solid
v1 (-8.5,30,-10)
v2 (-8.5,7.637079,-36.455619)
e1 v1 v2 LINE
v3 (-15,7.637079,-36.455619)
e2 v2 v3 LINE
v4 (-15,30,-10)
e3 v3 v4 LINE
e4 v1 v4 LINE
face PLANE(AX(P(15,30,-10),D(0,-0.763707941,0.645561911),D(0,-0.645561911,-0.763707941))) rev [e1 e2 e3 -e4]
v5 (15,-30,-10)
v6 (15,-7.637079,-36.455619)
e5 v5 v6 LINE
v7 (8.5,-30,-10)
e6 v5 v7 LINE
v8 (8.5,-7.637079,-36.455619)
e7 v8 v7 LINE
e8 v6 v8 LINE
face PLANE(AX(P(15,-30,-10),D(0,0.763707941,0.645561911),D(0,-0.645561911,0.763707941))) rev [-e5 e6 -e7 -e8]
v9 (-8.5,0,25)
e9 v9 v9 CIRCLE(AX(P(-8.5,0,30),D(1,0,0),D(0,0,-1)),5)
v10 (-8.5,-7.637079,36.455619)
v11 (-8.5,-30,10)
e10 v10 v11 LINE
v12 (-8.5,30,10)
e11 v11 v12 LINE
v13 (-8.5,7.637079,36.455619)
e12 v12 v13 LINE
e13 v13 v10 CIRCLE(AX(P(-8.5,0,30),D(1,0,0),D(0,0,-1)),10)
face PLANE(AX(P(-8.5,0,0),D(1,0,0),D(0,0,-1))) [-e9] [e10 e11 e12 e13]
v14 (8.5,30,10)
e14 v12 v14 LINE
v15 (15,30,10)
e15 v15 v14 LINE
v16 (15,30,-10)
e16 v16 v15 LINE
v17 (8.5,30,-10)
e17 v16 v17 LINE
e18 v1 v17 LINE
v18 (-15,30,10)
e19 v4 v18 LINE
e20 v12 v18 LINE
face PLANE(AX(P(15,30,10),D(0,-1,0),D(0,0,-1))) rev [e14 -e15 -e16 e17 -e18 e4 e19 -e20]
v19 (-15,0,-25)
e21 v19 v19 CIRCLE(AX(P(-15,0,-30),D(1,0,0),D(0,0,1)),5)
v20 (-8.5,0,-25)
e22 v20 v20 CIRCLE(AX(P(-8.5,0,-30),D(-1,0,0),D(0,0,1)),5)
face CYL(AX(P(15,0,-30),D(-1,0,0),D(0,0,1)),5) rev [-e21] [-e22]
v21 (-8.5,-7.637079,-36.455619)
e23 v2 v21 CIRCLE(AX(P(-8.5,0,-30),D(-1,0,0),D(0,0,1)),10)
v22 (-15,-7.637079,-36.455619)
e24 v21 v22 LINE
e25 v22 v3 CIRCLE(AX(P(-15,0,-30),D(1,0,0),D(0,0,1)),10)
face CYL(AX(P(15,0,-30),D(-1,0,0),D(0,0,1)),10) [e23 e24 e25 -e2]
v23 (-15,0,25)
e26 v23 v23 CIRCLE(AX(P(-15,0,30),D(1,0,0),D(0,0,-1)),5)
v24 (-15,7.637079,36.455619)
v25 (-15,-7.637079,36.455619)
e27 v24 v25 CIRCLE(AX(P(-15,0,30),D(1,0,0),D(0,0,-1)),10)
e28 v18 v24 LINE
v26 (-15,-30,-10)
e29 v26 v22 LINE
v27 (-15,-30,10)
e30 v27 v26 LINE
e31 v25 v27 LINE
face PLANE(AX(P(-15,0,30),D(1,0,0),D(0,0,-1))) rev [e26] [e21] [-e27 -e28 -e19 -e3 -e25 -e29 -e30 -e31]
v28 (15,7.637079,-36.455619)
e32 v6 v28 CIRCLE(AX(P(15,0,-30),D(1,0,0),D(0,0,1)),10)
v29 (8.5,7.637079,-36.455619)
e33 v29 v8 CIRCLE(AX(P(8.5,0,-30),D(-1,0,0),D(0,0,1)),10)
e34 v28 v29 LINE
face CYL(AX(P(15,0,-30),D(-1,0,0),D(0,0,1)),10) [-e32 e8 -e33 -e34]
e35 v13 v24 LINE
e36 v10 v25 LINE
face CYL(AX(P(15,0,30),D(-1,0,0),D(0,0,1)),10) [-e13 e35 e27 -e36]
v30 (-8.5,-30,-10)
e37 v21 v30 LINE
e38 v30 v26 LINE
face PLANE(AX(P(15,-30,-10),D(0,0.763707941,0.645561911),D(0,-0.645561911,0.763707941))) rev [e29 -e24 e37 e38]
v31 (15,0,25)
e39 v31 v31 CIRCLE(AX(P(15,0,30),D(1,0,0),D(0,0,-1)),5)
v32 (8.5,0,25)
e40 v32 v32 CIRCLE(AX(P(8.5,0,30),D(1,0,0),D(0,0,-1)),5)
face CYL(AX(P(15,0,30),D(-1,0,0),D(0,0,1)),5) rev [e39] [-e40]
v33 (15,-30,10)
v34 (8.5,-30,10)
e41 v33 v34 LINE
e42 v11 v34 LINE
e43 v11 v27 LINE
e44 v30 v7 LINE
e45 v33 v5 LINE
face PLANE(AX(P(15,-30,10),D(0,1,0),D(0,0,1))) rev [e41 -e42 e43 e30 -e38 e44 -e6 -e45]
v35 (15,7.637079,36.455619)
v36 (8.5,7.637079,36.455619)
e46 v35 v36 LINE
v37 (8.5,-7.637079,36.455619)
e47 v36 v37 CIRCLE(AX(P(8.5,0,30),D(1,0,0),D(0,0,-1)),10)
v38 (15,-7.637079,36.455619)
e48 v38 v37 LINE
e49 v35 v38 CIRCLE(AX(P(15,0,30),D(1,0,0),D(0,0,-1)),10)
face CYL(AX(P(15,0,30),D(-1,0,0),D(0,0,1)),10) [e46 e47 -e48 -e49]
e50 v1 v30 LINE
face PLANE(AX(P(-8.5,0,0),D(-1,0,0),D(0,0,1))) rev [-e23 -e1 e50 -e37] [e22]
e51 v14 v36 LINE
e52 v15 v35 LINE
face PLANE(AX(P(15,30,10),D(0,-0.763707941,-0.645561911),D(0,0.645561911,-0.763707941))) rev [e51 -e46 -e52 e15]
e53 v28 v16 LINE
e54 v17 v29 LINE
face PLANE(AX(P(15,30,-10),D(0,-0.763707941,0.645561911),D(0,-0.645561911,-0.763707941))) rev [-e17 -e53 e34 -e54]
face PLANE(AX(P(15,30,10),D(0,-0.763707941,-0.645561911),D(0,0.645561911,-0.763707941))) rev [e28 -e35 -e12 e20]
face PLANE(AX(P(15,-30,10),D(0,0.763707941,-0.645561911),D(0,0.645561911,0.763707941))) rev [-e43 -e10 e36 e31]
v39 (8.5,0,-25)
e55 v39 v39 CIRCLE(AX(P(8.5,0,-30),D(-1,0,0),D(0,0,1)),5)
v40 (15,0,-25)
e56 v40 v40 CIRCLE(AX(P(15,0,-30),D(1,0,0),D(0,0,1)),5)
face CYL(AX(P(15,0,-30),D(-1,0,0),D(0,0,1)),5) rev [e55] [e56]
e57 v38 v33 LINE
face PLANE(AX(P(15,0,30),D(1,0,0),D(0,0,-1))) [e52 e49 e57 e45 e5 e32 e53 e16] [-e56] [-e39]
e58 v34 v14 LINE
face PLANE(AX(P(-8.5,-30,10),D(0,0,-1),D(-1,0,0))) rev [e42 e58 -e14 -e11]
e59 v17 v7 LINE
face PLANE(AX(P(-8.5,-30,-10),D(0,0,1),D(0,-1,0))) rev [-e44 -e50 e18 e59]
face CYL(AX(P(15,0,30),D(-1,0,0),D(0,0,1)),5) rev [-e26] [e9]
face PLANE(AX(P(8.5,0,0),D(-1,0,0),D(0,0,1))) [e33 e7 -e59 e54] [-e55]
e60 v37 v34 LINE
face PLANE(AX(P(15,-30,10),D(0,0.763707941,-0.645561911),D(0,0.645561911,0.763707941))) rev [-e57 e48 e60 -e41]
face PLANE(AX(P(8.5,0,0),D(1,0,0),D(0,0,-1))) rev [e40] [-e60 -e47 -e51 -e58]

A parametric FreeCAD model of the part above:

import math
import FreeCAD as App
import Part
import Sketcher


def add_polygon(sketch, points):
    """Adds a closed chain of lines whose ends are joined by coincident constraints."""
    first, n = sketch.GeometryCount, len(points)
    for a, b in zip(points, points[1:] + points[:1]):
        sketch.addGeometry(Part.LineSegment(App.Vector(*a, 0), App.Vector(*b, 0)), False)
    for i in range(n):
        sketch.addConstraint(Sketcher.Constraint("Coincident", first + i, 2, first + (i + 1) % n, 1))

doc = App.newDocument("Part")
body = doc.addObject("PartDesign::Body", "Body")

sketch1 = doc.addObject("Sketcher::SketchObject", "Sketch")
body.addObject(sketch1)
sketch1.AttachmentSupport = (doc.YZ_Plane, [""])
sketch1.MapMode = "FlatFace"
sketch1.addGeometry([
    Part.LineSegment(App.Vector(30, -10, 0), App.Vector(30, 10, 0)),
    Part.LineSegment(App.Vector(30, 10, 0), App.Vector(8, 36, 0)),
    Part.ArcOfCircle(Part.Circle(App.Vector(0, 30, 0), App.Vector(0, 0, 1), 10), math.radians(40), math.radians(140)),
    Part.LineSegment(App.Vector(-8, 36, 0), App.Vector(-30, 10, 0)),
    Part.LineSegment(App.Vector(-30, 10, 0), App.Vector(-30, -10, 0)),
    Part.LineSegment(App.Vector(-30, -10, 0), App.Vector(-8, -36, 0)),
    Part.ArcOfCircle(Part.Circle(App.Vector(0, -30, 0), App.Vector(0, 0, 1), 10), math.radians(-140), math.radians(-40)),
    Part.LineSegment(App.Vector(8, -36, 0), App.Vector(30, -10, 0)),
    Part.Circle(App.Vector(0, -30, 0), App.Vector(0, 0, 1), 5),
    Part.Circle(App.Vector(0, 30, 0), App.Vector(0, 0, 1), 5),
], False)
sketch1.addConstraint([
    Sketcher.Constraint("Coincident", 0, 2, 1, 1),
    Sketcher.Constraint("Tangent", 1, 2, 2, 1),
    Sketcher.Constraint("Tangent", 2, 2, 3, 1),
    Sketcher.Constraint("Coincident", 3, 2, 4, 1),
    Sketcher.Constraint("Coincident", 4, 2, 5, 1),
    Sketcher.Constraint("Tangent", 5, 2, 6, 1),
    Sketcher.Constraint("Tangent", 6, 2, 7, 1),
    Sketcher.Constraint("Coincident", 7, 2, 0, 1),
    Sketcher.Constraint("Vertical", 0),
    Sketcher.Constraint("Vertical", 4),
    Sketcher.Constraint("Coincident", 8, 3, 6, 3),
    Sketcher.Constraint("Coincident", 9, 3, 2, 3),
    Sketcher.Constraint("Equal", 2, 6),
    Sketcher.Constraint("Equal", 8, 9),
    Sketcher.Constraint("Symmetric", 2, 3, 6, 3, -1, 1),
    Sketcher.Constraint("Symmetric", 0, 2, 4, 2, -1, 1),
    Sketcher.Constraint("Symmetric", 1, 2, 2, 2, -2),
    Sketcher.Constraint("Parallel", 3, 7),
    Sketcher.Constraint("Diameter", 8, 10.0),
    Sketcher.Constraint("Radius", 2, 10.0),
    Sketcher.Constraint("DistanceY", 0, 1, 0, 2, 20.0),
    Sketcher.Constraint("DistanceY", -1, 1, 2, 3, 30.0),
    Sketcher.Constraint("DistanceX", -1, 1, 0, 2, 30.0),
])
pad1 = doc.addObject("PartDesign::Pad", "Pad")
body.addObject(pad1)
pad1.Profile = sketch1
pad1.Length = 30
pad1.Midplane = True

sketch2 = doc.addObject("Sketcher::SketchObject", "Sketch001")
body.addObject(sketch2)
sketch2.AttachmentSupport = (doc.YZ_Plane, [""])
sketch2.MapMode = "FlatFace"
add_polygon(sketch2, [(30, 40), (-30, 40), (-30, 10), (30, 10)])
add_polygon(sketch2, [(30, -10), (-30, -10), (-30, -40), (30, -40)])
sketch2.addConstraint([
    Sketcher.Constraint("Horizontal", 0),
    Sketcher.Constraint("Vertical", 1),
    Sketcher.Constraint("Horizontal", 2),
    Sketcher.Constraint("Vertical", 3),
    Sketcher.Constraint("Horizontal", 4),
    Sketcher.Constraint("Vertical", 5),
    Sketcher.Constraint("Horizontal", 6),
    Sketcher.Constraint("Vertical", 7),
    Sketcher.Constraint("Symmetric", 2, 2, 4, 2, -1, 1),
    Sketcher.Constraint("Symmetric", 0, 2, 6, 2, -1, 1),
    Sketcher.Constraint("Vertical", 1, 2, 4, 2),
    Sketcher.Constraint("DistanceX", 0, 2, 0, 1, 60.0),
    Sketcher.Constraint("DistanceY", 1, 2, 1, 1, 30.0),
    Sketcher.Constraint("DistanceY", -1, 1, 0, 2, 40.0),
])
pocket1 = doc.addObject("PartDesign::Pocket", "Pocket")
body.addObject(pocket1)
pocket1.Profile = sketch2
pocket1.Length = 17
pocket1.Midplane = True

doc.recompute()
